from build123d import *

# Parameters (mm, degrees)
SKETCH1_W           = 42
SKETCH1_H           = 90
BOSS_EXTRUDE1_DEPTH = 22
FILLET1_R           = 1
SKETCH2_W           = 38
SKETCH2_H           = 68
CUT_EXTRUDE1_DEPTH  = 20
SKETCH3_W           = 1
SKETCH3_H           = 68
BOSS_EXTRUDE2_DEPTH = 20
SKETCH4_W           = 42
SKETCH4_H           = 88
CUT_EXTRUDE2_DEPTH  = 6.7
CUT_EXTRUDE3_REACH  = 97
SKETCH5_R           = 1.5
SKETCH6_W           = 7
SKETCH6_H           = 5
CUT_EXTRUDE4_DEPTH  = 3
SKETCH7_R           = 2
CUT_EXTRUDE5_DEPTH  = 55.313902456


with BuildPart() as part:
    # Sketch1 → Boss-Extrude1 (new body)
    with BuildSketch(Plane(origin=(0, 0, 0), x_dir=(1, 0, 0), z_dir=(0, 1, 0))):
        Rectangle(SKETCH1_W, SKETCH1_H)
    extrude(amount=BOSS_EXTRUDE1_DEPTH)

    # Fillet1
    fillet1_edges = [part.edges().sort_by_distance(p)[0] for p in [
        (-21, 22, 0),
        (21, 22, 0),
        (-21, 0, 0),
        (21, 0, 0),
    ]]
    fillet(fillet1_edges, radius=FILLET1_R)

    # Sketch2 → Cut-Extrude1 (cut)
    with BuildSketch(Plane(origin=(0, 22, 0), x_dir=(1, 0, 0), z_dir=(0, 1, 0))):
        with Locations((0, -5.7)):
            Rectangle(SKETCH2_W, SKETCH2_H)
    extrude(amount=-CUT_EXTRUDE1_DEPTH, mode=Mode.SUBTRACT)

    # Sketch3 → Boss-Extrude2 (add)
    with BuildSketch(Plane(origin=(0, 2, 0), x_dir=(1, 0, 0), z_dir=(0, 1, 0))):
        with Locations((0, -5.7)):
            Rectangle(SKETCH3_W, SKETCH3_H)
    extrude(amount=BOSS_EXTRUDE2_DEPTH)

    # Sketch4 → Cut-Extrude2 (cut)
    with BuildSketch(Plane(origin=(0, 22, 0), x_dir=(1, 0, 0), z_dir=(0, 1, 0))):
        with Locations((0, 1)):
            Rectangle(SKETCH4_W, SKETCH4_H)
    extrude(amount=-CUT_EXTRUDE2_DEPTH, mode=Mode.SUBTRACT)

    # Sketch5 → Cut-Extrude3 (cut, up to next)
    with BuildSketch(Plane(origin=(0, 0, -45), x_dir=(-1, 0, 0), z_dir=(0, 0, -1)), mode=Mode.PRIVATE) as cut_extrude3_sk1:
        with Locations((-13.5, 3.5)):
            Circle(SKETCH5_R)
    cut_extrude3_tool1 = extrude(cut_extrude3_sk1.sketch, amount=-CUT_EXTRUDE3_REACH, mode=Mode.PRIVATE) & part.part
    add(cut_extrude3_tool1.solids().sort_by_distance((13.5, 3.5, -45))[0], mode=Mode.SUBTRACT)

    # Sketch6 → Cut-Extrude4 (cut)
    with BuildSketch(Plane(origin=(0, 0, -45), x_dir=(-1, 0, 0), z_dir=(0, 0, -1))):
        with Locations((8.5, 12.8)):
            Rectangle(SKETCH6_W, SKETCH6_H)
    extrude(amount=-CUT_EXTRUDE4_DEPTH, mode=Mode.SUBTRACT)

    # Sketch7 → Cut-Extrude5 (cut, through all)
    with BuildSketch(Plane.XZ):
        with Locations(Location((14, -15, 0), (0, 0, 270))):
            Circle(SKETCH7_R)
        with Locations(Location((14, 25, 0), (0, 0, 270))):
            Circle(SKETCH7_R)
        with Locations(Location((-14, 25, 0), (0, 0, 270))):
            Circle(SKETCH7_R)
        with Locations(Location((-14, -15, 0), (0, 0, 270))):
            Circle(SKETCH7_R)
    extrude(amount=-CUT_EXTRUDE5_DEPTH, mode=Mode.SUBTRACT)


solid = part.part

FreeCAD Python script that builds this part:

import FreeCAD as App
import Part
import Sketcher
from FreeCAD import Vector


def edges_at(feature, points):
    """Names of the edges that pass closest to the given points."""
    edges = feature.Shape.Edges
    near = lambda p: min(range(len(edges)), key=lambda i: edges[i].distToShape(Part.Vertex(*p))[0])
    return sorted({f"Edge{near(p) + 1}" for p in points})


def add_polygon(sketch, points):
    """Adds a closed chain of lines whose ends are joined by coincident constraints."""
    first, n = sketch.GeometryCount, len(points)
    for a, b in zip(points, points[1:] + points[:1]):
        sketch.addGeometry(Part.LineSegment(App.Vector(*a, 0), App.Vector(*b, 0)), False)
    for i in range(n):
        sketch.addConstraint(Sketcher.Constraint("Coincident", first + i, 2, first + (i + 1) % n, 1))

doc = App.newDocument("Part")
body = doc.addObject("PartDesign::Body", "Body")

# Sketch on XZ plane
sketch1 = doc.addObject("Sketcher::SketchObject", "Sketch")
body.addObject(sketch1)
sketch1.AttachmentSupport = (doc.XZ_Plane, [""])
sketch1.MapMode = "FlatFace"
add_polygon(sketch1, [(-21, -45), (-21, 45), (21, 45), (21, -45)])  # lines 0-3
sketch1.addConstraint([
    Sketcher.Constraint("Vertical", 0),
    Sketcher.Constraint("Horizontal", 1),
    Sketcher.Constraint("Vertical", 2),
    Sketcher.Constraint("Horizontal", 3),
    Sketcher.Constraint("Symmetric", 0, 2, 2, 2, -1, 1),
    Sketcher.Constraint("DistanceX", 1, 1, 1, 2, 42.0),
    Sketcher.Constraint("DistanceY", 0, 1, 0, 2, 90.0),
])
pad1 = doc.addObject("PartDesign::Pad", "Pad")
body.addObject(pad1)
pad1.Profile = sketch1
pad1.Length = 22
pad1.Reversed = True
doc.recompute()

fillet = doc.addObject("PartDesign::Fillet", "Fillet")
body.addObject(fillet)
fillet.Base = (pad1, edges_at(pad1, [
    (-21, 22, 0),
    (21, 22, 0),
    (-21, 0, 0),
    (21, 0, 0),
]))
fillet.Radius = 1

# Sketch on XZ plane
sketch2 = doc.addObject("Sketcher::SketchObject", "Sketch001")
body.addObject(sketch2)
sketch2.AttachmentSupport = (doc.XZ_Plane, [""])
sketch2.MapMode = "FlatFace"
sketch2.AttachmentOffset = App.Placement(Vector(0, 0, -22), App.Rotation())
add_polygon(sketch2, [(-19, -28), (-19, 40), (19, 40), (19, -28)])  # lines 0-3
sketch2.addConstraint([
    Sketcher.Constraint("Vertical", 0),
    Sketcher.Constraint("Horizontal", 1),
    Sketcher.Constraint("Vertical", 2),
    Sketcher.Constraint("Horizontal", 3),
    Sketcher.Constraint("DistanceX", 1, 1, 1, 2, 38.0),
    Sketcher.Constraint("DistanceY", 0, 1, 0, 2, 68.0),
    Sketcher.Constraint("DistanceX", 0, 2, -1, 1, 19.0),
    Sketcher.Constraint("DistanceY", -1, 1, 0, 2, 39.7),
])
pocket1 = doc.addObject("PartDesign::Pocket", "Pocket")
body.addObject(pocket1)
pocket1.Profile = sketch2
pocket1.Length = 20
pocket1.Reversed = True

# Sketch on XZ plane
sketch3 = doc.addObject("Sketcher::SketchObject", "Sketch002")
body.addObject(sketch3)
sketch3.AttachmentSupport = (doc.XZ_Plane, [""])
sketch3.MapMode = "FlatFace"
sketch3.AttachmentOffset = App.Placement(Vector(0, 0, -2), App.Rotation())
add_polygon(sketch3, [(-0.5, -28.3), (-0.5, 39.7), (0.5, 39.7), (0.5, -28.3)])  # lines 0-3
sketch3.addConstraint([
    Sketcher.Constraint("Vertical", 0),
    Sketcher.Constraint("Horizontal", 1),
    Sketcher.Constraint("Vertical", 2),
    Sketcher.Constraint("Horizontal", 3),
    Sketcher.Constraint("DistanceX", 1, 1, 1, 2, 1.0),
    Sketcher.Constraint("DistanceY", 0, 1, 0, 2, 68.0),
    Sketcher.Constraint("DistanceX", 0, 2, -1, 1, 0.5),
    Sketcher.Constraint("DistanceY", -1, 1, 0, 2, 39.7),
])
pad2 = doc.addObject("PartDesign::Pad", "Pad001")
body.addObject(pad2)
pad2.Profile = sketch3
pad2.Length = 20
pad2.Reversed = True

# Sketch on XZ plane
sketch4 = doc.addObject("Sketcher::SketchObject", "Sketch003")
body.addObject(sketch4)
sketch4.AttachmentSupport = (doc.XZ_Plane, [""])
sketch4.MapMode = "FlatFace"
sketch4.AttachmentOffset = App.Placement(Vector(0, 0, -22), App.Rotation())
add_polygon(sketch4, [(-21, -45), (-21, 43), (21, 43), (21, -45)])  # lines 0-3
sketch4.addConstraint([
    Sketcher.Constraint("Vertical", 0),
    Sketcher.Constraint("Horizontal", 1),
    Sketcher.Constraint("Vertical", 2),
    Sketcher.Constraint("Horizontal", 3),
    Sketcher.Constraint("DistanceX", 1, 1, 1, 2, 42.0),
    Sketcher.Constraint("DistanceY", 0, 1, 0, 2, 88.0),
    Sketcher.Constraint("DistanceX", 0, 2, -1, 1, 21.0),
    Sketcher.Constraint("DistanceY", -1, 1, 0, 2, 43.0),
])
pocket2 = doc.addObject("PartDesign::Pocket", "Pocket001")
body.addObject(pocket2)
pocket2.Profile = sketch4
pocket2.Length = 6.7
pocket2.Reversed = True

# Sketch on XY plane
sketch5 = doc.addObject("Sketcher::SketchObject", "Sketch004")
body.addObject(sketch5)
sketch5.AttachmentSupport = (doc.XY_Plane, [""])
sketch5.MapMode = "FlatFace"
sketch5.AttachmentOffset = App.Placement(Vector(0, 0, -45), App.Rotation())
sketch5.addGeometry(Part.Circle(Vector(13.5, 3.5, 0), Vector(0, 0, 1), 1.5), False)
sketch5.addConstraint([
    Sketcher.Constraint("Diameter", 0, 3.0),
    Sketcher.Constraint("DistanceX", -1, 1, 0, 3, 13.5),
    Sketcher.Constraint("DistanceY", -1, 1, 0, 3, 3.5),
])
pocket3 = doc.addObject("PartDesign::Pocket", "Pocket002")
body.addObject(pocket3)
pocket3.Profile = sketch5
pocket3.Type = "UpToFirst"
pocket3.Reversed = True

# Sketch on XY plane
sketch6 = doc.addObject("Sketcher::SketchObject", "Sketch005")
body.addObject(sketch6)
sketch6.AttachmentSupport = (doc.XY_Plane, [""])
sketch6.MapMode = "FlatFace"
sketch6.AttachmentOffset = App.Placement(Vector(0, 0, -45), App.Rotation())
add_polygon(sketch6, [(-5, 15), (-5, 10), (-12, 10), (-12, 15)])  # lines 0-3
sketch6.addConstraint([
    Sketcher.Constraint("Vertical", 0),
    Sketcher.Constraint("Horizontal", 1),
    Sketcher.Constraint("Vertical", 2),
    Sketcher.Constraint("Horizontal", 3),
    Sketcher.Constraint("DistanceX", 1, 2, 1, 1, 7.0),
    Sketcher.Constraint("DistanceY", 0, 2, 0, 1, 5.0),
    Sketcher.Constraint("DistanceX", 0, 2, -1, 1, 5.0),
    Sketcher.Constraint("DistanceY", -1, 1, 0, 2, 10.3),
])
pocket4 = doc.addObject("PartDesign::Pocket", "Pocket003")
body.addObject(pocket4)
pocket4.Profile = sketch6
pocket4.Length = 3
pocket4.Reversed = True

# Sketch on XZ plane
sketch7 = doc.addObject("Sketcher::SketchObject", "Sketch006")
body.addObject(sketch7)
sketch7.AttachmentSupport = (doc.XZ_Plane, [""])
sketch7.MapMode = "FlatFace"
sketch7.addGeometry([
    Part.Circle(Vector(14, -15, 0), Vector(0, 0, 1), 2),
    Part.Circle(Vector(14, 25, 0), Vector(0, 0, 1), 2),
    Part.Circle(Vector(-14, 25, 0), Vector(0, 0, 1), 2),
    Part.Circle(Vector(-14, -15, 0), Vector(0, 0, 1), 2),
], False)
sketch7.addConstraint([
    Sketcher.Constraint("Equal", 0, 1),
    Sketcher.Constraint("Equal", 1, 2),
    Sketcher.Constraint("Equal", 2, 3),
    Sketcher.Constraint("Symmetric", 1, 3, 2, 3, -2),
    Sketcher.Constraint("Symmetric", 0, 3, 3, 3, -2),
    Sketcher.Constraint("Vertical", 0, 3, 1, 3),
    Sketcher.Constraint("Diameter", 0, 4.0),
    Sketcher.Constraint("DistanceX", -1, 1, 0, 3, 14.0),
    Sketcher.Constraint("DistanceY", 0, 3, -1, 1, 15.0),
    Sketcher.Constraint("DistanceY", -1, 1, 1, 3, 25.0),
])
pocket5 = doc.addObject("PartDesign::Pocket", "Pocket004")
body.addObject(pocket5)
pocket5.Profile = sketch7
pocket5.Type = "ThroughAll"

doc.recompute()
